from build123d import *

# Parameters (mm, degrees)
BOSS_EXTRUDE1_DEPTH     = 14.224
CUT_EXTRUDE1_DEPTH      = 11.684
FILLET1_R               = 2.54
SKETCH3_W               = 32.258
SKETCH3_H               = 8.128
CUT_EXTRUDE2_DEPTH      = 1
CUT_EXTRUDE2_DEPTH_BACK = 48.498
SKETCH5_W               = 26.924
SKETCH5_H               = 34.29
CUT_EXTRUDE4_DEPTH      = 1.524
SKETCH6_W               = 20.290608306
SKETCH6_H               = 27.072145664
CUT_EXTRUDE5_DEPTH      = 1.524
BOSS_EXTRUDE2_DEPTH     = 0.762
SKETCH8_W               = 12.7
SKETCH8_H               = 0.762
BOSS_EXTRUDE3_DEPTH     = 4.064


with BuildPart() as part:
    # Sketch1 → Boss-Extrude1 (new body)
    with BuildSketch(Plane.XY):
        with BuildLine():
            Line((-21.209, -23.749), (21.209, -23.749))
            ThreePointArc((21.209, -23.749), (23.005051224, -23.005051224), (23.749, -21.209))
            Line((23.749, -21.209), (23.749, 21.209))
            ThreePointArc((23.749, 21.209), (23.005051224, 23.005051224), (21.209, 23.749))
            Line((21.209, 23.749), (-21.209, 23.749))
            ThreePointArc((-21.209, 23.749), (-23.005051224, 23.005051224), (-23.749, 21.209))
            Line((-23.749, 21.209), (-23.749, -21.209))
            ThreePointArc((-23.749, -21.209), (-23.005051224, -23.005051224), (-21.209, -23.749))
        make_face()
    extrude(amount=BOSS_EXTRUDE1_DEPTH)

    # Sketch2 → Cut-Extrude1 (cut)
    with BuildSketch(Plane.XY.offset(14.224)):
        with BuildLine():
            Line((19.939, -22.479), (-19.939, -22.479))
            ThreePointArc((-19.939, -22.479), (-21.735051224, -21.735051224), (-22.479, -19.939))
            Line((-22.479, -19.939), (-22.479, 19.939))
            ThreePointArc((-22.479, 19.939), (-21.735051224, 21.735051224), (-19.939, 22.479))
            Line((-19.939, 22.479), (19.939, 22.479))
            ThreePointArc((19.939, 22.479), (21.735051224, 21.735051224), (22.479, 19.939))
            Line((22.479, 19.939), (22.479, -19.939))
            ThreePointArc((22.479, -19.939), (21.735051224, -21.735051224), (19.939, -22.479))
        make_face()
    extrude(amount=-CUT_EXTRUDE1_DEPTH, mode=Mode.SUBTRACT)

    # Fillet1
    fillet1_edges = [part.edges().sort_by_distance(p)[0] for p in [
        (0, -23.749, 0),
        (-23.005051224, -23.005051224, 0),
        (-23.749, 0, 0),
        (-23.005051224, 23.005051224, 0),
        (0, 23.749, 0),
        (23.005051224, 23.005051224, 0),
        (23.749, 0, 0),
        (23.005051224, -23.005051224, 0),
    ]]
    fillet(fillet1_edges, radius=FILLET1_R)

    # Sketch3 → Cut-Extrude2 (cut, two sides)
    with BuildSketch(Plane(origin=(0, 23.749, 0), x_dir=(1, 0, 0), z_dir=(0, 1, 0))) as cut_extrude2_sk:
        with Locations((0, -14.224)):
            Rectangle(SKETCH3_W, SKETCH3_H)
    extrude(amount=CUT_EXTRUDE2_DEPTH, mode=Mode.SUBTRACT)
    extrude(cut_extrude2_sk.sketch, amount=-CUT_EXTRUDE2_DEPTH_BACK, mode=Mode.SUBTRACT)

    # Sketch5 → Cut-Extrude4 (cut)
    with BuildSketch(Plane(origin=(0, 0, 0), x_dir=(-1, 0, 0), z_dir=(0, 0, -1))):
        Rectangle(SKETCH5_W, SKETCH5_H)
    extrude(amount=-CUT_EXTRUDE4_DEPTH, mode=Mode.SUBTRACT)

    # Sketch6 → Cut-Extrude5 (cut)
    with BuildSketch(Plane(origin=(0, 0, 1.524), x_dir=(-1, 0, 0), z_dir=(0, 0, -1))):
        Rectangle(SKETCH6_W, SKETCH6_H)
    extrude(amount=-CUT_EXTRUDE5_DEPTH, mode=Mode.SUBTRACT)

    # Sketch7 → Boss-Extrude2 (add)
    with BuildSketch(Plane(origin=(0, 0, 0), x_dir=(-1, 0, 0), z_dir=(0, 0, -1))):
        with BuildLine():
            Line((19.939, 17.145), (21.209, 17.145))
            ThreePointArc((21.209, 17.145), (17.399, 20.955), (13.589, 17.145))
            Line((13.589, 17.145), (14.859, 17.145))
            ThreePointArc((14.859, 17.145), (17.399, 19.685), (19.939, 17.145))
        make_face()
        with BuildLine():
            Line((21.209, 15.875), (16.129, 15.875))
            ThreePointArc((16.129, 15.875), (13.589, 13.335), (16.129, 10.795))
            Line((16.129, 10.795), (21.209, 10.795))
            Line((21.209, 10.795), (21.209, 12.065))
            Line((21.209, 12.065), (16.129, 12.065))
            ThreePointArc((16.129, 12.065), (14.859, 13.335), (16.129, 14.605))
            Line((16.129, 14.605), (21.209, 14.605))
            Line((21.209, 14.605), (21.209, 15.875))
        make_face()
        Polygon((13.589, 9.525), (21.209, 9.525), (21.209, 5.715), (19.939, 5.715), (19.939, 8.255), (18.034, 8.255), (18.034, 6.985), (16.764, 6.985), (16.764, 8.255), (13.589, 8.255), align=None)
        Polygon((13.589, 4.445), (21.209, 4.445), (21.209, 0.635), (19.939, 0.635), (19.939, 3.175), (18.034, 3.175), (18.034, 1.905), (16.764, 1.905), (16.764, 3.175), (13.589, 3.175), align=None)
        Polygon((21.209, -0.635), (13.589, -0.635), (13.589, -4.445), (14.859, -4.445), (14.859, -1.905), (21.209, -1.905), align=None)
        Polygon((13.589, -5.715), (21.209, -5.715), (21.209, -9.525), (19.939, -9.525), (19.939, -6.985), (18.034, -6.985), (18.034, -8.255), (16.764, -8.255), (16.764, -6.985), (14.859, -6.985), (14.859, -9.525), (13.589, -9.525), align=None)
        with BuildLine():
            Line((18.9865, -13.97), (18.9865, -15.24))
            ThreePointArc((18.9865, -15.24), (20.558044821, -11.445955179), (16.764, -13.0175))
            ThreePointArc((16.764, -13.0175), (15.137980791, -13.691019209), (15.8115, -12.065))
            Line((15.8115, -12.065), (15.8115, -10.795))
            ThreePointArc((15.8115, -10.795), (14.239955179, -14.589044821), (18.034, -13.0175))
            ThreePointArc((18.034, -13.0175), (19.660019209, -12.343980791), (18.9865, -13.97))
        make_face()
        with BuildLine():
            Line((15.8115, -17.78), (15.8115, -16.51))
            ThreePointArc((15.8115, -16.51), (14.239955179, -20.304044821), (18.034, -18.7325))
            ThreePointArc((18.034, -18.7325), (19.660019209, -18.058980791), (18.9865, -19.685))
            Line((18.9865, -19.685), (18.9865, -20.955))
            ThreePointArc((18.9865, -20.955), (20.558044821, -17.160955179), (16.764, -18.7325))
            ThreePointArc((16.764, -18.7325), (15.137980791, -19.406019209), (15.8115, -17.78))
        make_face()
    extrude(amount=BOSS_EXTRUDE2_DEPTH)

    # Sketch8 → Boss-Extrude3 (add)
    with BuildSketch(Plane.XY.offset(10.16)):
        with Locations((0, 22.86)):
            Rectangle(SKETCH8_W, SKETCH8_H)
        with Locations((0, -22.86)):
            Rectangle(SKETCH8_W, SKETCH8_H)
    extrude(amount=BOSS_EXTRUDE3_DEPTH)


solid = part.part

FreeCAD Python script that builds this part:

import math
import FreeCAD as App
import Part
import Sketcher

V = App.Vector
Q = App.Units.Quantity


def edges_at(feature, points):
    """Names of the edges that pass closest to the given points."""
    edges = feature.Shape.Edges
    near = lambda p: min(range(len(edges)), key=lambda i: edges[i].distToShape(Part.Vertex(*p))[0])
    return sorted({f"Edge{near(p) + 1}" for p in points})

doc = App.newDocument("Part")
body = doc.addObject("PartDesign::Body", "Body")

# Sketch on XY plane
sketch1 = doc.addObject("Sketcher::SketchObject", "Sketch")
body.addObject(sketch1)
sketch1.AttachmentSupport = (doc.XY_Plane, [""])
sketch1.MapMode = "FlatFace"
sketch1.addGeometry(Part.LineSegment(V(-21.209, -23.749, 0), V(21.209, -23.749, 0)), False)
sketch1.addGeometry(Part.ArcOfCircle(Part.Circle(V(21.209, -21.209, 0), V(0, 0, 1), 2.54), math.radians(-90), math.radians(0)), False)
sketch1.addGeometry(Part.LineSegment(V(23.749, -21.209, 0), V(23.749, 21.209, 0)), False)
sketch1.addGeometry(Part.ArcOfCircle(Part.Circle(V(21.209, 21.209, 0), V(0, 0, 1), 2.54), math.radians(0), math.radians(90)), False)
sketch1.addGeometry(Part.LineSegment(V(21.209, 23.749, 0), V(-21.209, 23.749, 0)), False)
sketch1.addGeometry(Part.ArcOfCircle(Part.Circle(V(-21.209, 21.209, 0), V(0, 0, 1), 2.54), math.radians(90), math.radians(180)), False)
sketch1.addGeometry(Part.LineSegment(V(-23.749, 21.209, 0), V(-23.749, -21.209, 0)), False)
sketch1.addGeometry(Part.ArcOfCircle(Part.Circle(V(-21.209, -21.209, 0), V(0, 0, 1), 2.54), math.radians(-180), math.radians(-90)), False)
sketch1.addConstraint(Sketcher.Constraint("Tangent", 0, 2, 1, 1))
sketch1.addConstraint(Sketcher.Constraint("Tangent", 1, 2, 2, 1))
sketch1.addConstraint(Sketcher.Constraint("Tangent", 2, 2, 3, 1))
sketch1.addConstraint(Sketcher.Constraint("Tangent", 3, 2, 4, 1))
sketch1.addConstraint(Sketcher.Constraint("Tangent", 4, 2, 5, 1))
sketch1.addConstraint(Sketcher.Constraint("Tangent", 5, 2, 6, 1))
sketch1.addConstraint(Sketcher.Constraint("Tangent", 6, 2, 7, 1))
sketch1.addConstraint(Sketcher.Constraint("Tangent", 7, 2, 0, 1))
sketch1.addConstraint(Sketcher.Constraint("Horizontal", 0))
sketch1.addConstraint(Sketcher.Constraint("Vertical", 2))
sketch1.addConstraint(Sketcher.Constraint("Horizontal", 4))
sketch1.addConstraint(Sketcher.Constraint("Vertical", 6))
sketch1.addConstraint(Sketcher.Constraint("Equal", 1, 3))
sketch1.addConstraint(Sketcher.Constraint("Equal", 3, 5))
sketch1.addConstraint(Sketcher.Constraint("Equal", 5, 7))
sketch1.addConstraint(Sketcher.Constraint("Symmetric", 1, 3, 5, 3, -1, 1))
sketch1.addConstraint(Sketcher.Constraint("Equal", 4, 2))
sketch1.addConstraint(Sketcher.Constraint("Radius", 1, Q("0.1 in")))
sketch1.addConstraint(Sketcher.Constraint("DistanceX", 0, 1, 0, 2, Q("1.67 in")))
pad1 = doc.addObject("PartDesign::Pad", "Pad")
body.addObject(pad1)
pad1.Profile = sketch1
pad1.Length = Q("0.56 in")

# Sketch on XY plane
sketch2 = doc.addObject("Sketcher::SketchObject", "Sketch001")
body.addObject(sketch2)
sketch2.AttachmentSupport = (doc.XY_Plane, [""])
sketch2.MapMode = "FlatFace"
sketch2.AttachmentOffset = App.Placement(V(0, 0, 0.56 * 25.4), App.Rotation())
sketch2.addGeometry(Part.LineSegment(V(-19.939, -22.479, 0), V(19.939, -22.479, 0)), False)
sketch2.addGeometry(Part.ArcOfCircle(Part.Circle(V(19.939, -19.939, 0), V(0, 0, 1), 2.54), math.radians(-90), math.radians(0)), False)
sketch2.addGeometry(Part.LineSegment(V(22.479, -19.939, 0), V(22.479, 19.939, 0)), False)
sketch2.addGeometry(Part.ArcOfCircle(Part.Circle(V(19.939, 19.939, 0), V(0, 0, 1), 2.54), math.radians(0), math.radians(90)), False)
sketch2.addGeometry(Part.LineSegment(V(19.939, 22.479, 0), V(-19.939, 22.479, 0)), False)
sketch2.addGeometry(Part.ArcOfCircle(Part.Circle(V(-19.939, 19.939, 0), V(0, 0, 1), 2.54), math.radians(90), math.radians(180)), False)
sketch2.addGeometry(Part.LineSegment(V(-22.479, 19.939, 0), V(-22.479, -19.939, 0)), False)
sketch2.addGeometry(Part.ArcOfCircle(Part.Circle(V(-19.939, -19.939, 0), V(0, 0, 1), 2.54), math.radians(-180), math.radians(-90)), False)
sketch2.addConstraint(Sketcher.Constraint("Tangent", 0, 2, 1, 1))
sketch2.addConstraint(Sketcher.Constraint("Tangent", 1, 2, 2, 1))
sketch2.addConstraint(Sketcher.Constraint("Tangent", 2, 2, 3, 1))
sketch2.addConstraint(Sketcher.Constraint("Tangent", 3, 2, 4, 1))
sketch2.addConstraint(Sketcher.Constraint("Tangent", 4, 2, 5, 1))
sketch2.addConstraint(Sketcher.Constraint("Tangent", 5, 2, 6, 1))
sketch2.addConstraint(Sketcher.Constraint("Tangent", 6, 2, 7, 1))
sketch2.addConstraint(Sketcher.Constraint("Tangent", 7, 2, 0, 1))
sketch2.addConstraint(Sketcher.Constraint("Horizontal", 0))
sketch2.addConstraint(Sketcher.Constraint("Vertical", 2))
sketch2.addConstraint(Sketcher.Constraint("Horizontal", 4))
sketch2.addConstraint(Sketcher.Constraint("Vertical", 6))
sketch2.addConstraint(Sketcher.Constraint("Equal", 1, 3))
sketch2.addConstraint(Sketcher.Constraint("Equal", 3, 5))
sketch2.addConstraint(Sketcher.Constraint("Equal", 5, 7))
sketch2.addConstraint(Sketcher.Constraint("Symmetric", 1, 3, 5, 3, -1, 1))
sketch2.addConstraint(Sketcher.Constraint("Equal", 4, 2))
sketch2.addConstraint(Sketcher.Constraint("Radius", 1, Q("0.1 in")))
sketch2.addConstraint(Sketcher.Constraint("DistanceX", 0, 1, 0, 2, Q("1.57 in")))
pocket1 = doc.addObject("PartDesign::Pocket", "Pocket")
body.addObject(pocket1)
pocket1.Profile = sketch2
pocket1.Length = Q("0.46 in")
doc.recompute()

fillet = doc.addObject("PartDesign::Fillet", "Fillet")
body.addObject(fillet)
fillet.Base = (pocket1, edges_at(pocket1, [
    (0, -23.749, 0),
    (-23.005, -23.005, 0),
    (-23.749, 0, 0),
    (-23.005, 23.005, 0),
    (0, 23.749, 0),
    (23.005, 23.005, 0),
    (23.749, 0, 0),
    (23.005, -23.005, 0),
]))
fillet.Radius = Q("0.1 in")

# Sketch on XZ plane
sketch3 = doc.addObject("Sketcher::SketchObject", "Sketch002")
body.addObject(sketch3)
sketch3.AttachmentSupport = (doc.XZ_Plane, [""])
sketch3.MapMode = "FlatFace"
sketch3.AttachmentOffset = App.Placement(V(0, 0, -0.935 * 25.4), App.Rotation())
sketch3.addGeometry(Part.LineSegment(V(-16.129, 10.16, 0), V(-16.129, 18.288, 0)), False)
sketch3.addGeometry(Part.LineSegment(V(-16.129, 18.288, 0), V(16.129, 18.288, 0)), False)
sketch3.addGeometry(Part.LineSegment(V(16.129, 18.288, 0), V(16.129, 10.16, 0)), False)
sketch3.addGeometry(Part.LineSegment(V(16.129, 10.16, 0), V(-16.129, 10.16, 0)), False)
sketch3.addConstraint(Sketcher.Constraint("Coincident", 0, 2, 1, 1))
sketch3.addConstraint(Sketcher.Constraint("Coincident", 1, 2, 2, 1))
sketch3.addConstraint(Sketcher.Constraint("Coincident", 2, 2, 3, 1))
sketch3.addConstraint(Sketcher.Constraint("Coincident", 3, 2, 0, 1))
sketch3.addConstraint(Sketcher.Constraint("Vertical", 0))
sketch3.addConstraint(Sketcher.Constraint("Horizontal", 1))
sketch3.addConstraint(Sketcher.Constraint("Vertical", 2))
sketch3.addConstraint(Sketcher.Constraint("Horizontal", 3))
sketch3.addConstraint(Sketcher.Constraint("DistanceX", 1, 1, 1, 2, Q("1.27 in")))
sketch3.addConstraint(Sketcher.Constraint("DistanceY", 0, 1, 0, 2, Q("0.32 in")))
sketch3.addConstraint(Sketcher.Constraint("DistanceY", -1, 1, 2, 2, Q("0.4 in")))
sketch3.addConstraint(Sketcher.Constraint("DistanceX", 0, 2, -1, 1, Q("0.635 in")))
pocket2 = doc.addObject("PartDesign::Pocket", "Pocket001")
body.addObject(pocket2)
pocket2.Profile = sketch3
pocket2.Type = "ThroughAll"
pocket2.Midplane = True

# Sketch on XY plane
sketch4 = doc.addObject("Sketcher::SketchObject", "Sketch003")
body.addObject(sketch4)
sketch4.AttachmentSupport = (doc.XY_Plane, [""])
sketch4.MapMode = "FlatFace"
sketch4.addGeometry(Part.LineSegment(V(13.462, 17.145, 0), V(13.462, -17.145, 0)), False)
sketch4.addGeometry(Part.LineSegment(V(13.462, -17.145, 0), V(-13.462, -17.145, 0)), False)
sketch4.addGeometry(Part.LineSegment(V(-13.462, -17.145, 0), V(-13.462, 17.145, 0)), False)
sketch4.addGeometry(Part.LineSegment(V(-13.462, 17.145, 0), V(13.462, 17.145, 0)), False)
sketch4.addConstraint(Sketcher.Constraint("Coincident", 0, 2, 1, 1))
sketch4.addConstraint(Sketcher.Constraint("Coincident", 1, 2, 2, 1))
sketch4.addConstraint(Sketcher.Constraint("Coincident", 2, 2, 3, 1))
sketch4.addConstraint(Sketcher.Constraint("Coincident", 3, 2, 0, 1))
sketch4.addConstraint(Sketcher.Constraint("Vertical", 0))
sketch4.addConstraint(Sketcher.Constraint("Horizontal", 1))
sketch4.addConstraint(Sketcher.Constraint("Vertical", 2))
sketch4.addConstraint(Sketcher.Constraint("Horizontal", 3))
sketch4.addConstraint(Sketcher.Constraint("Symmetric", 0, 2, 2, 2, -1, 1))
sketch4.addConstraint(Sketcher.Constraint("DistanceX", 1, 2, 1, 1, Q("1.06 in")))
sketch4.addConstraint(Sketcher.Constraint("DistanceY", 0, 2, 0, 1, Q("1.35 in")))
pocket3 = doc.addObject("PartDesign::Pocket", "Pocket002")
body.addObject(pocket3)
pocket3.Profile = sketch4
pocket3.Length = Q("0.06 in")
pocket3.Reversed = True

# Sketch on XY plane
sketch5 = doc.addObject("Sketcher::SketchObject", "Sketch004")
body.addObject(sketch5)
sketch5.AttachmentSupport = (doc.XY_Plane, [""])
sketch5.MapMode = "FlatFace"
sketch5.AttachmentOffset = App.Placement(V(0, 0, 0.06 * 25.4), App.Rotation())
sketch5.addGeometry(Part.LineSegment(V(10.145304, 13.536073, 0), V(10.145304, -13.536073, 0)), False)
sketch5.addGeometry(Part.LineSegment(V(10.145304, -13.536073, 0), V(-10.145304, -13.536073, 0)), False)
sketch5.addGeometry(Part.LineSegment(V(-10.145304, -13.536073, 0), V(-10.145304, 13.536073, 0)), False)
sketch5.addGeometry(Part.LineSegment(V(-10.145304, 13.536073, 0), V(10.145304, 13.536073, 0)), False)
sketch5.addConstraint(Sketcher.Constraint("Coincident", 0, 2, 1, 1))
sketch5.addConstraint(Sketcher.Constraint("Coincident", 1, 2, 2, 1))
sketch5.addConstraint(Sketcher.Constraint("Coincident", 2, 2, 3, 1))
sketch5.addConstraint(Sketcher.Constraint("Coincident", 3, 2, 0, 1))
sketch5.addConstraint(Sketcher.Constraint("Vertical", 0))
sketch5.addConstraint(Sketcher.Constraint("Horizontal", 1))
sketch5.addConstraint(Sketcher.Constraint("Vertical", 2))
sketch5.addConstraint(Sketcher.Constraint("Horizontal", 3))
sketch5.addConstraint(Sketcher.Constraint("Symmetric", 0, 2, 2, 2, -1, 1))
sketch5.addConstraint(Sketcher.Constraint("DistanceX", 1, 2, 1, 1, Q("20.290608 mm")))
sketch5.addConstraint(Sketcher.Constraint("DistanceY", 0, 2, 0, 1, Q("27.072146 mm")))
pocket4 = doc.addObject("PartDesign::Pocket", "Pocket003")
body.addObject(pocket4)
pocket4.Profile = sketch5
pocket4.Length = Q("0.06 in")
pocket4.Reversed = True

# Sketch on XY plane
sketch6 = doc.addObject("Sketcher::SketchObject", "Sketch005")
body.addObject(sketch6)
sketch6.AttachmentSupport = (doc.XY_Plane, [""])
sketch6.MapMode = "FlatFace"
sketch6.addGeometry(Part.LineSegment(V(-19.939, 17.145, 0), V(-21.209, 17.145, 0)), False)
sketch6.addGeometry(Part.ArcOfCircle(Part.Circle(V(-17.399, 17.145, 0), V(0, 0, 1), 3.81), math.radians(0), math.radians(180)), False)
sketch6.addGeometry(Part.LineSegment(V(-13.589, 17.145, 0), V(-14.859, 17.145, 0)), False)
sketch6.addGeometry(Part.ArcOfCircle(Part.Circle(V(-17.399, 17.145, 0), V(0, 0, 1), 2.54), math.radians(0), math.radians(180)), False)
sketch6.addGeometry(Part.LineSegment(V(-21.209, 15.875, 0), V(-16.129, 15.875, 0)), False)
sketch6.addGeometry(Part.ArcOfCircle(Part.Circle(V(-16.129, 13.335, 0), V(0, 0, 1), 2.54), math.radians(-90), math.radians(90)), False)
sketch6.addGeometry(Part.LineSegment(V(-16.129, 10.795, 0), V(-21.209, 10.795, 0)), False)
sketch6.addGeometry(Part.LineSegment(V(-21.209, 10.795, 0), V(-21.209, 12.065, 0)), False)
sketch6.addGeometry(Part.LineSegment(V(-21.209, 12.065, 0), V(-16.129, 12.065, 0)), False)
sketch6.addGeometry(Part.ArcOfCircle(Part.Circle(V(-16.129, 13.335, 0), V(0, 0, 1), 1.27), math.radians(-90), math.radians(90)), False)
sketch6.addGeometry(Part.LineSegment(V(-16.129, 14.605, 0), V(-21.209, 14.605, 0)), False)
sketch6.addGeometry(Part.LineSegment(V(-21.209, 14.605, 0), V(-21.209, 15.875, 0)), False)
sketch6.addGeometry(Part.LineSegment(V(-21.209, 9.525, 0), V(-13.589, 9.525, 0)), False)
sketch6.addGeometry(Part.LineSegment(V(-13.589, 9.525, 0), V(-13.589, 8.255, 0)), False)
sketch6.addGeometry(Part.LineSegment(V(-13.589, 8.255, 0), V(-16.764, 8.255, 0)), False)
sketch6.addGeometry(Part.LineSegment(V(-16.764, 8.255, 0), V(-16.764, 6.985, 0)), False)
sketch6.addGeometry(Part.LineSegment(V(-16.764, 6.985, 0), V(-18.034, 6.985, 0)), False)
sketch6.addGeometry(Part.LineSegment(V(-18.034, 6.985, 0), V(-18.034, 8.255, 0)), False)
sketch6.addGeometry(Part.LineSegment(V(-18.034, 8.255, 0), V(-19.939, 8.255, 0)), False)
sketch6.addGeometry(Part.LineSegment(V(-19.939, 8.255, 0), V(-19.939, 5.715, 0)), False)
sketch6.addGeometry(Part.LineSegment(V(-19.939, 5.715, 0), V(-21.209, 5.715, 0)), False)
sketch6.addGeometry(Part.LineSegment(V(-21.209, 5.715, 0), V(-21.209, 9.525, 0)), False)
sketch6.addGeometry(Part.LineSegment(V(-21.209, 4.445, 0), V(-13.589, 4.445, 0)), False)
sketch6.addGeometry(Part.LineSegment(V(-13.589, 4.445, 0), V(-13.589, 3.175, 0)), False)
sketch6.addGeometry(Part.LineSegment(V(-13.589, 3.175, 0), V(-16.764, 3.175, 0)), False)
sketch6.addGeometry(Part.LineSegment(V(-16.764, 3.175, 0), V(-16.764, 1.905, 0)), False)
sketch6.addGeometry(Part.LineSegment(V(-16.764, 1.905, 0), V(-18.034, 1.905, 0)), False)
sketch6.addGeometry(Part.LineSegment(V(-18.034, 1.905, 0), V(-18.034, 3.175, 0)), False)
sketch6.addGeometry(Part.LineSegment(V(-18.034, 3.175, 0), V(-19.939, 3.175, 0)), False)
sketch6.addGeometry(Part.LineSegment(V(-19.939, 3.175, 0), V(-19.939, 0.635, 0)), False)
sketch6.addGeometry(Part.LineSegment(V(-19.939, 0.635, 0), V(-21.209, 0.635, 0)), False)
sketch6.addGeometry(Part.LineSegment(V(-21.209, 0.635, 0), V(-21.209, 4.445, 0)), False)
sketch6.addGeometry(Part.LineSegment(V(-21.209, -0.635, 0), V(-13.589, -0.635, 0)), False)
sketch6.addGeometry(Part.LineSegment(V(-13.589, -0.635, 0), V(-13.589, -4.445, 0)), False)
sketch6.addGeometry(Part.LineSegment(V(-13.589, -4.445, 0), V(-14.859, -4.445, 0)), False)
sketch6.addGeometry(Part.LineSegment(V(-14.859, -4.445, 0), V(-14.859, -1.905, 0)), False)
sketch6.addGeometry(Part.LineSegment(V(-14.859, -1.905, 0), V(-21.209, -1.905, 0)), False)
sketch6.addGeometry(Part.LineSegment(V(-21.209, -1.905, 0), V(-21.209, -0.635, 0)), False)
sketch6.addGeometry(Part.LineSegment(V(-21.209, -5.715, 0), V(-13.589, -5.715, 0)), False)
sketch6.addGeometry(Part.LineSegment(V(-13.589, -5.715, 0), V(-13.589, -9.525, 0)), False)
sketch6.addGeometry(Part.LineSegment(V(-13.589, -9.525, 0), V(-14.859, -9.525, 0)), False)
sketch6.addGeometry(Part.LineSegment(V(-14.859, -9.525, 0), V(-14.859, -6.985, 0)), False)
sketch6.addGeometry(Part.LineSegment(V(-14.859, -6.985, 0), V(-16.764, -6.985, 0)), False)
sketch6.addGeometry(Part.LineSegment(V(-16.764, -6.985, 0), V(-16.764, -8.255, 0)), False)
sketch6.addGeometry(Part.LineSegment(V(-16.764, -8.255, 0), V(-18.034, -8.255, 0)), False)
sketch6.addGeometry(Part.LineSegment(V(-18.034, -8.255, 0), V(-18.034, -6.985, 0)), False)
sketch6.addGeometry(Part.LineSegment(V(-18.034, -6.985, 0), V(-19.939, -6.985, 0)), False)
sketch6.addGeometry(Part.LineSegment(V(-19.939, -6.985, 0), V(-19.939, -9.525, 0)), False)
sketch6.addGeometry(Part.LineSegment(V(-19.939, -9.525, 0), V(-21.209, -9.525, 0)), False)
sketch6.addGeometry(Part.LineSegment(V(-21.209, -9.525, 0), V(-21.209, -5.715, 0)), False)
sketch6.addGeometry(Part.LineSegment(V(-18.9865, -13.97, 0), V(-18.9865, -15.24, 0)), False)
sketch6.addGeometry(Part.ArcOfCircle(Part.Circle(V(-18.9865, -13.0175, 0), V(0, 0, 1), 2.2225), math.radians(0), math.radians(270)), False)
sketch6.addGeometry(Part.ArcOfCircle(Part.Circle(V(-15.8115, -13.0175, 0), V(0, 0, 1), 0.9525), math.radians(180), math.radians(450)), False)
sketch6.addGeometry(Part.LineSegment(V(-15.8115, -12.065, 0), V(-15.8115, -10.795, 0)), False)
sketch6.addGeometry(Part.ArcOfCircle(Part.Circle(V(-15.8115, -13.0175, 0), V(0, 0, 1), 2.2225), math.radians(180), math.radians(450)), False)
sketch6.addGeometry(Part.ArcOfCircle(Part.Circle(V(-18.9865, -13.0175, 0), V(0, 0, 1), 0.9525), math.radians(0), math.radians(270)), False)
sketch6.addGeometry(Part.LineSegment(V(-15.8115, -17.78, 0), V(-15.8115, -16.51, 0)), False)
sketch6.addGeometry(Part.ArcOfCircle(Part.Circle(V(-15.8115, -18.7325, 0), V(0, 0, 1), 2.2225), math.radians(180), math.radians(450)), False)
sketch6.addGeometry(Part.ArcOfCircle(Part.Circle(V(-18.9865, -18.7325, 0), V(0, 0, 1), 0.9525), math.radians(0), math.radians(270)), False)
sketch6.addGeometry(Part.LineSegment(V(-18.9865, -19.685, 0), V(-18.9865, -20.955, 0)), False)
sketch6.addGeometry(Part.ArcOfCircle(Part.Circle(V(-18.9865, -18.7325, 0), V(0, 0, 1), 2.2225), math.radians(0), math.radians(270)), False)
sketch6.addGeometry(Part.ArcOfCircle(Part.Circle(V(-15.8115, -18.7325, 0), V(0, 0, 1), 0.9525), math.radians(180), math.radians(450)), False)
sketch6.addConstraint(Sketcher.Constraint("Coincident", 0, 2, 1, 2))
sketch6.addConstraint(Sketcher.Constraint("Coincident", 1, 1, 2, 1))
sketch6.addConstraint(Sketcher.Constraint("Coincident", 2, 2, 3, 1))
sketch6.addConstraint(Sketcher.Constraint("Coincident", 3, 2, 0, 1))
sketch6.addConstraint(Sketcher.Constraint("Tangent", 4, 2, 5, 2))
sketch6.addConstraint(Sketcher.Constraint("Tangent", 5, 1, 6, 1))
sketch6.addConstraint(Sketcher.Constraint("Coincident", 6, 2, 7, 1))
sketch6.addConstraint(Sketcher.Constraint("Coincident", 7, 2, 8, 1))
sketch6.addConstraint(Sketcher.Constraint("Tangent", 8, 2, 9, 1))
sketch6.addConstraint(Sketcher.Constraint("Tangent", 9, 2, 10, 1))
sketch6.addConstraint(Sketcher.Constraint("Coincident", 10, 2, 11, 1))
sketch6.addConstraint(Sketcher.Constraint("Coincident", 11, 2, 4, 1))
sketch6.addConstraint(Sketcher.Constraint("Coincident", 12, 2, 13, 1))
sketch6.addConstraint(Sketcher.Constraint("Coincident", 13, 2, 14, 1))
sketch6.addConstraint(Sketcher.Constraint("Coincident", 14, 2, 15, 1))
sketch6.addConstraint(Sketcher.Constraint("Coincident", 15, 2, 16, 1))
sketch6.addConstraint(Sketcher.Constraint("Coincident", 16, 2, 17, 1))
sketch6.addConstraint(Sketcher.Constraint("Coincident", 17, 2, 18, 1))
sketch6.addConstraint(Sketcher.Constraint("Coincident", 18, 2, 19, 1))
sketch6.addConstraint(Sketcher.Constraint("Coincident", 19, 2, 20, 1))
sketch6.addConstraint(Sketcher.Constraint("Coincident", 20, 2, 21, 1))
sketch6.addConstraint(Sketcher.Constraint("Coincident", 21, 2, 12, 1))
sketch6.addConstraint(Sketcher.Constraint("Coincident", 22, 2, 23, 1))
sketch6.addConstraint(Sketcher.Constraint("Coincident", 23, 2, 24, 1))
sketch6.addConstraint(Sketcher.Constraint("Coincident", 24, 2, 25, 1))
sketch6.addConstraint(Sketcher.Constraint("Coincident", 25, 2, 26, 1))
sketch6.addConstraint(Sketcher.Constraint("Coincident", 26, 2, 27, 1))
sketch6.addConstraint(Sketcher.Constraint("Coincident", 27, 2, 28, 1))
sketch6.addConstraint(Sketcher.Constraint("Coincident", 28, 2, 29, 1))
sketch6.addConstraint(Sketcher.Constraint("Coincident", 29, 2, 30, 1))
sketch6.addConstraint(Sketcher.Constraint("Coincident", 30, 2, 31, 1))
sketch6.addConstraint(Sketcher.Constraint("Coincident", 31, 2, 22, 1))
sketch6.addConstraint(Sketcher.Constraint("Coincident", 32, 2, 33, 1))
sketch6.addConstraint(Sketcher.Constraint("Coincident", 33, 2, 34, 1))
sketch6.addConstraint(Sketcher.Constraint("Coincident", 34, 2, 35, 1))
sketch6.addConstraint(Sketcher.Constraint("Coincident", 35, 2, 36, 1))
sketch6.addConstraint(Sketcher.Constraint("Coincident", 36, 2, 37, 1))
sketch6.addConstraint(Sketcher.Constraint("Coincident", 37, 2, 32, 1))
sketch6.addConstraint(Sketcher.Constraint("Coincident", 38, 2, 39, 1))
sketch6.addConstraint(Sketcher.Constraint("Coincident", 39, 2, 40, 1))
sketch6.addConstraint(Sketcher.Constraint("Coincident", 40, 2, 41, 1))
sketch6.addConstraint(Sketcher.Constraint("Coincident", 41, 2, 42, 1))
sketch6.addConstraint(Sketcher.Constraint("Coincident", 42, 2, 43, 1))
sketch6.addConstraint(Sketcher.Constraint("Coincident", 43, 2, 44, 1))
sketch6.addConstraint(Sketcher.Constraint("Coincident", 44, 2, 45, 1))
sketch6.addConstraint(Sketcher.Constraint("Coincident", 45, 2, 46, 1))
sketch6.addConstraint(Sketcher.Constraint("Coincident", 46, 2, 47, 1))
sketch6.addConstraint(Sketcher.Constraint("Coincident", 47, 2, 48, 1))
sketch6.addConstraint(Sketcher.Constraint("Coincident", 48, 2, 49, 1))
sketch6.addConstraint(Sketcher.Constraint("Coincident", 49, 2, 38, 1))
sketch6.addConstraint(Sketcher.Constraint("Coincident", 50, 2, 51, 2))
sketch6.addConstraint(Sketcher.Constraint("Tangent", 51, 1, 52, 1))
sketch6.addConstraint(Sketcher.Constraint("Coincident", 52, 2, 53, 1))
sketch6.addConstraint(Sketcher.Constraint("Coincident", 53, 2, 54, 2))
sketch6.addConstraint(Sketcher.Constraint("Tangent", 54, 1, 55, 1))
sketch6.addConstraint(Sketcher.Constraint("Coincident", 55, 2, 50, 1))
sketch6.addConstraint(Sketcher.Constraint("Coincident", 56, 2, 57, 2))
sketch6.addConstraint(Sketcher.Constraint("Tangent", 57, 1, 58, 1))
sketch6.addConstraint(Sketcher.Constraint("Coincident", 58, 2, 59, 1))
sketch6.addConstraint(Sketcher.Constraint("Coincident", 59, 2, 60, 2))
sketch6.addConstraint(Sketcher.Constraint("Tangent", 60, 1, 61, 1))
sketch6.addConstraint(Sketcher.Constraint("Coincident", 61, 2, 56, 1))
sketch6.addConstraint(Sketcher.Constraint("Horizontal", 0))
sketch6.addConstraint(Sketcher.Constraint("Horizontal", 2))
sketch6.addConstraint(Sketcher.Constraint("Horizontal", 4))
sketch6.addConstraint(Sketcher.Constraint("Horizontal", 6))
sketch6.addConstraint(Sketcher.Constraint("Vertical", 7))
sketch6.addConstraint(Sketcher.Constraint("Horizontal", 8))
sketch6.addConstraint(Sketcher.Constraint("Horizontal", 10))
sketch6.addConstraint(Sketcher.Constraint("Vertical", 11))
sketch6.addConstraint(Sketcher.Constraint("Horizontal", 12))
sketch6.addConstraint(Sketcher.Constraint("Vertical", 13))
sketch6.addConstraint(Sketcher.Constraint("Horizontal", 14))
sketch6.addConstraint(Sketcher.Constraint("Vertical", 15))
sketch6.addConstraint(Sketcher.Constraint("Horizontal", 16))
sketch6.addConstraint(Sketcher.Constraint("Vertical", 17))
sketch6.addConstraint(Sketcher.Constraint("Horizontal", 18))
sketch6.addConstraint(Sketcher.Constraint("Vertical", 19))
sketch6.addConstraint(Sketcher.Constraint("Horizontal", 20))
sketch6.addConstraint(Sketcher.Constraint("Vertical", 21))
sketch6.addConstraint(Sketcher.Constraint("Horizontal", 22))
sketch6.addConstraint(Sketcher.Constraint("Vertical", 23))
sketch6.addConstraint(Sketcher.Constraint("Horizontal", 24))
sketch6.addConstraint(Sketcher.Constraint("Vertical", 25))
sketch6.addConstraint(Sketcher.Constraint("Horizontal", 26))
sketch6.addConstraint(Sketcher.Constraint("Vertical", 27))
sketch6.addConstraint(Sketcher.Constraint("Horizontal", 28))
sketch6.addConstraint(Sketcher.Constraint("Vertical", 29))
sketch6.addConstraint(Sketcher.Constraint("Horizontal", 30))
sketch6.addConstraint(Sketcher.Constraint("Vertical", 31))
sketch6.addConstraint(Sketcher.Constraint("Horizontal", 32))
sketch6.addConstraint(Sketcher.Constraint("Vertical", 33))
sketch6.addConstraint(Sketcher.Constraint("Horizontal", 34))
sketch6.addConstraint(Sketcher.Constraint("Vertical", 35))
sketch6.addConstraint(Sketcher.Constraint("Horizontal", 36))
sketch6.addConstraint(Sketcher.Constraint("Vertical", 37))
sketch6.addConstraint(Sketcher.Constraint("Horizontal", 38))
sketch6.addConstraint(Sketcher.Constraint("Vertical", 39))
sketch6.addConstraint(Sketcher.Constraint("Horizontal", 40))
sketch6.addConstraint(Sketcher.Constraint("Vertical", 41))
sketch6.addConstraint(Sketcher.Constraint("Horizontal", 42))
sketch6.addConstraint(Sketcher.Constraint("Vertical", 43))
sketch6.addConstraint(Sketcher.Constraint("Horizontal", 44))
sketch6.addConstraint(Sketcher.Constraint("Vertical", 45))
sketch6.addConstraint(Sketcher.Constraint("Horizontal", 46))
sketch6.addConstraint(Sketcher.Constraint("Vertical", 47))
sketch6.addConstraint(Sketcher.Constraint("Horizontal", 48))
sketch6.addConstraint(Sketcher.Constraint("Vertical", 49))
sketch6.addConstraint(Sketcher.Constraint("Vertical", 50))
sketch6.addConstraint(Sketcher.Constraint("Vertical", 53))
sketch6.addConstraint(Sketcher.Constraint("Vertical", 56))
sketch6.addConstraint(Sketcher.Constraint("Vertical", 59))
sketch6.addConstraint(Sketcher.Constraint("Coincident", 3, 3, 1, 3))
sketch6.addConstraint(Sketcher.Constraint("Coincident", 9, 3, 5, 3))
sketch6.addConstraint(Sketcher.Constraint("Coincident", 54, 3, 52, 3))
sketch6.addConstraint(Sketcher.Constraint("Coincident", 55, 3, 51, 3))
sketch6.addConstraint(Sketcher.Constraint("Coincident", 60, 3, 58, 3))
sketch6.addConstraint(Sketcher.Constraint("Coincident", 61, 3, 57, 3))
sketch6.addConstraint(Sketcher.Constraint("Equal", 3, 5))
sketch6.addConstraint(Sketcher.Constraint("Equal", 51, 54))
sketch6.addConstraint(Sketcher.Constraint("Equal", 54, 57))
sketch6.addConstraint(Sketcher.Constraint("Equal", 55, 58))
sketch6.addConstraint(Sketcher.Constraint("Equal", 57, 60))
sketch6.addConstraint(Sketcher.Constraint("Symmetric", 22, 2, 33, 2, -1))
sketch6.addConstraint(Sketcher.Constraint("Symmetric", 30, 2, 37, 2, -1))
sketch6.addConstraint(Sketcher.Constraint("Symmetric", 12, 2, 39, 2, -1))
sketch6.addConstraint(Sketcher.Constraint("Symmetric", 15, 2, 42, 2, -1))
sketch6.addConstraint(Sketcher.Constraint("Symmetric", 17, 2, 44, 2, -1))
sketch6.addConstraint(Sketcher.Constraint("Symmetric", 21, 2, 48, 2, -1))
sketch6.addConstraint(Sketcher.Constraint("Horizontal", 51, 3, 52, 3))
sketch6.addConstraint(Sketcher.Constraint("Horizontal", 57, 3, 58, 3))
sketch6.addConstraint(Sketcher.Constraint("Horizontal", 3, 3, 0, 2))
sketch6.addConstraint(Sketcher.Constraint("Horizontal", 0, 2, 1, 1))
sketch6.addConstraint(Sketcher.Constraint("Horizontal", 14, 2, 17, 2))
sketch6.addConstraint(Sketcher.Constraint("Horizontal", 24, 2, 27, 2))
sketch6.addConstraint(Sketcher.Constraint("Horizontal", 42, 2, 45, 2))
sketch6.addConstraint(Sketcher.Constraint("Vertical", 54, 3, 57, 3))
sketch6.addConstraint(Sketcher.Constraint("Vertical", 0, 2, 6, 2))
sketch6.addConstraint(Sketcher.Constraint("Vertical", 7, 2, 10, 2))
sketch6.addConstraint(Sketcher.Constraint("Vertical", 1, 1, 12, 2))
sketch6.addConstraint(Sketcher.Constraint("Vertical", 3, 2, 18, 2))
sketch6.addConstraint(Sketcher.Constraint("Vertical", 11, 2, 20, 2))
sketch6.addConstraint(Sketcher.Constraint("Vertical", 13, 2, 22, 2))
sketch6.addConstraint(Sketcher.Constraint("Vertical", 15, 2, 24, 2))
sketch6.addConstraint(Sketcher.Constraint("Vertical", 17, 2, 26, 2))
sketch6.addConstraint(Sketcher.Constraint("Vertical", 19, 2, 28, 2))
sketch6.addConstraint(Sketcher.Constraint("Vertical", 21, 2, 30, 2))
sketch6.addConstraint(Sketcher.Constraint("Vertical", 2, 2, 34, 2))
sketch6.addConstraint(Sketcher.Constraint("Vertical", 35, 2, 40, 2))
sketch6.addConstraint(Sketcher.Constraint("Vertical", 29, 2, 46, 2))
sketch6.addConstraint(Sketcher.Constraint("Vertical", 60, 3, 50, 2))
sketch6.addConstraint(Sketcher.Constraint("Vertical", 43, 2, 51, 1))
sketch6.addConstraint(Sketcher.Constraint("Vertical", 61, 3, 52, 2))
sketch6.addConstraint(Sketcher.Constraint("Vertical", 45, 2, 54, 1))
sketch6.addConstraint(Sketcher.Constraint("Vertical", 53, 2, 56, 2))
sketch6.addConstraint(Sketcher.Constraint("Vertical", 55, 2, 58, 2))
sketch6.addConstraint(Sketcher.Constraint("Equal", 2, 16))
sketch6.addConstraint(Sketcher.Constraint("Equal", 28, 42))
sketch6.addConstraint(Sketcher.Constraint("Equal", 48, 7))
sketch6.addConstraint(Sketcher.Constraint("Equal", 11, 13))
sketch6.addConstraint(Sketcher.Constraint("Equal", 13, 15))
sketch6.addConstraint(Sketcher.Constraint("Equal", 17, 23))
sketch6.addConstraint(Sketcher.Constraint("Equal", 23, 25))
sketch6.addConstraint(Sketcher.Constraint("Equal", 19, 29))
sketch6.addConstraint(Sketcher.Constraint("Equal", 29, 35))
sketch6.addConstraint(Sketcher.Constraint("Equal", 33, 39))
sketch6.addConstraint(Sketcher.Constraint("Equal", 35, 41))
sketch6.addConstraint(Sketcher.Constraint("Radius", 3, Q("0.1 in")))
sketch6.addConstraint(Sketcher.Constraint("Radius", 1, Q("0.15 in")))
sketch6.addConstraint(Sketcher.Constraint("DistanceX", 4, 1, 4, 2, Q("0.2 in")))
sketch6.addConstraint(Sketcher.Constraint("DistanceY", 50, 2, -1, 1, Q("0.6 in")))
sketch6.addConstraint(Sketcher.Constraint("DistanceY", 61, 2, -1, 1, Q("0.7 in")))
sketch6.addConstraint(Sketcher.Constraint("Radius", 51, Q("0.0875 in")))
sketch6.addConstraint(Sketcher.Constraint("DistanceX", 14, 2, -1, 1, Q("0.66 in")))
sketch6.addConstraint(Sketcher.Constraint("DistanceY", -1, 1, 1, 3, Q("0.675 in")))
sketch6.addConstraint(Sketcher.Constraint("DistanceY", -1, 1, 5, 3, Q("0.525 in")))
sketch6.addConstraint(Sketcher.Constraint("DistanceY", -1, 1, 12, 2, Q("0.375 in")))
sketch6.addConstraint(Sketcher.Constraint("DistanceY", -1, 1, 22, 2, Q("0.175 in")))
pad2 = doc.addObject("PartDesign::Pad", "Pad001")
body.addObject(pad2)
pad2.Profile = sketch6
pad2.Length = Q("0.03 in")
pad2.Reversed = True

# Sketch on XY plane
sketch7 = doc.addObject("Sketcher::SketchObject", "Sketch006")
body.addObject(sketch7)
sketch7.AttachmentSupport = (doc.XY_Plane, [""])
sketch7.MapMode = "FlatFace"
sketch7.AttachmentOffset = App.Placement(V(0, 0, 0.4 * 25.4), App.Rotation())
sketch7.addGeometry(Part.LineSegment(V(-6.35, 23.241, 0), V(-6.35, 22.479, 0)), False)
sketch7.addGeometry(Part.LineSegment(V(-6.35, 22.479, 0), V(6.35, 22.479, 0)), False)
sketch7.addGeometry(Part.LineSegment(V(6.35, 22.479, 0), V(6.35, 23.241, 0)), False)
sketch7.addGeometry(Part.LineSegment(V(6.35, 23.241, 0), V(-6.35, 23.241, 0)), False)
sketch7.addGeometry(Part.LineSegment(V(-6.35, -22.479, 0), V(-6.35, -23.241, 0)), False)
sketch7.addGeometry(Part.LineSegment(V(-6.35, -23.241, 0), V(6.35, -23.241, 0)), False)
sketch7.addGeometry(Part.LineSegment(V(6.35, -23.241, 0), V(6.35, -22.479, 0)), False)
sketch7.addGeometry(Part.LineSegment(V(6.35, -22.479, 0), V(-6.35, -22.479, 0)), False)
sketch7.addConstraint(Sketcher.Constraint("Coincident", 0, 2, 1, 1))
sketch7.addConstraint(Sketcher.Constraint("Coincident", 1, 2, 2, 1))
sketch7.addConstraint(Sketcher.Constraint("Coincident", 2, 2, 3, 1))
sketch7.addConstraint(Sketcher.Constraint("Coincident", 3, 2, 0, 1))
sketch7.addConstraint(Sketcher.Constraint("Coincident", 4, 2, 5, 1))
sketch7.addConstraint(Sketcher.Constraint("Coincident", 5, 2, 6, 1))
sketch7.addConstraint(Sketcher.Constraint("Coincident", 6, 2, 7, 1))
sketch7.addConstraint(Sketcher.Constraint("Coincident", 7, 2, 4, 1))
sketch7.addConstraint(Sketcher.Constraint("Vertical", 0))
sketch7.addConstraint(Sketcher.Constraint("Horizontal", 1))
sketch7.addConstraint(Sketcher.Constraint("Vertical", 2))
sketch7.addConstraint(Sketcher.Constraint("Horizontal", 3))
sketch7.addConstraint(Sketcher.Constraint("Vertical", 4))
sketch7.addConstraint(Sketcher.Constraint("Horizontal", 5))
sketch7.addConstraint(Sketcher.Constraint("Vertical", 6))
sketch7.addConstraint(Sketcher.Constraint("Horizontal", 7))
sketch7.addConstraint(Sketcher.Constraint("Symmetric", 2, 2, 4, 2, -1, 1))
sketch7.addConstraint(Sketcher.Constraint("Symmetric", 0, 2, 6, 2, -1, 1))
sketch7.addConstraint(Sketcher.Constraint("Vertical", 3, 2, 4, 2))
sketch7.addConstraint(Sketcher.Constraint("DistanceX", 1, 1, 1, 2, Q("0.5 in")))
sketch7.addConstraint(Sketcher.Constraint("DistanceY", 0, 2, 0, 1, Q("0.03 in")))
sketch7.addConstraint(Sketcher.Constraint("DistanceY", 4, 2, 0, 2, Q("1.8 in")))
pad3 = doc.addObject("PartDesign::Pad", "Pad002")
body.addObject(pad3)
pad3.Profile = sketch7
pad3.Length = Q("0.16 in")

doc.recompute()
